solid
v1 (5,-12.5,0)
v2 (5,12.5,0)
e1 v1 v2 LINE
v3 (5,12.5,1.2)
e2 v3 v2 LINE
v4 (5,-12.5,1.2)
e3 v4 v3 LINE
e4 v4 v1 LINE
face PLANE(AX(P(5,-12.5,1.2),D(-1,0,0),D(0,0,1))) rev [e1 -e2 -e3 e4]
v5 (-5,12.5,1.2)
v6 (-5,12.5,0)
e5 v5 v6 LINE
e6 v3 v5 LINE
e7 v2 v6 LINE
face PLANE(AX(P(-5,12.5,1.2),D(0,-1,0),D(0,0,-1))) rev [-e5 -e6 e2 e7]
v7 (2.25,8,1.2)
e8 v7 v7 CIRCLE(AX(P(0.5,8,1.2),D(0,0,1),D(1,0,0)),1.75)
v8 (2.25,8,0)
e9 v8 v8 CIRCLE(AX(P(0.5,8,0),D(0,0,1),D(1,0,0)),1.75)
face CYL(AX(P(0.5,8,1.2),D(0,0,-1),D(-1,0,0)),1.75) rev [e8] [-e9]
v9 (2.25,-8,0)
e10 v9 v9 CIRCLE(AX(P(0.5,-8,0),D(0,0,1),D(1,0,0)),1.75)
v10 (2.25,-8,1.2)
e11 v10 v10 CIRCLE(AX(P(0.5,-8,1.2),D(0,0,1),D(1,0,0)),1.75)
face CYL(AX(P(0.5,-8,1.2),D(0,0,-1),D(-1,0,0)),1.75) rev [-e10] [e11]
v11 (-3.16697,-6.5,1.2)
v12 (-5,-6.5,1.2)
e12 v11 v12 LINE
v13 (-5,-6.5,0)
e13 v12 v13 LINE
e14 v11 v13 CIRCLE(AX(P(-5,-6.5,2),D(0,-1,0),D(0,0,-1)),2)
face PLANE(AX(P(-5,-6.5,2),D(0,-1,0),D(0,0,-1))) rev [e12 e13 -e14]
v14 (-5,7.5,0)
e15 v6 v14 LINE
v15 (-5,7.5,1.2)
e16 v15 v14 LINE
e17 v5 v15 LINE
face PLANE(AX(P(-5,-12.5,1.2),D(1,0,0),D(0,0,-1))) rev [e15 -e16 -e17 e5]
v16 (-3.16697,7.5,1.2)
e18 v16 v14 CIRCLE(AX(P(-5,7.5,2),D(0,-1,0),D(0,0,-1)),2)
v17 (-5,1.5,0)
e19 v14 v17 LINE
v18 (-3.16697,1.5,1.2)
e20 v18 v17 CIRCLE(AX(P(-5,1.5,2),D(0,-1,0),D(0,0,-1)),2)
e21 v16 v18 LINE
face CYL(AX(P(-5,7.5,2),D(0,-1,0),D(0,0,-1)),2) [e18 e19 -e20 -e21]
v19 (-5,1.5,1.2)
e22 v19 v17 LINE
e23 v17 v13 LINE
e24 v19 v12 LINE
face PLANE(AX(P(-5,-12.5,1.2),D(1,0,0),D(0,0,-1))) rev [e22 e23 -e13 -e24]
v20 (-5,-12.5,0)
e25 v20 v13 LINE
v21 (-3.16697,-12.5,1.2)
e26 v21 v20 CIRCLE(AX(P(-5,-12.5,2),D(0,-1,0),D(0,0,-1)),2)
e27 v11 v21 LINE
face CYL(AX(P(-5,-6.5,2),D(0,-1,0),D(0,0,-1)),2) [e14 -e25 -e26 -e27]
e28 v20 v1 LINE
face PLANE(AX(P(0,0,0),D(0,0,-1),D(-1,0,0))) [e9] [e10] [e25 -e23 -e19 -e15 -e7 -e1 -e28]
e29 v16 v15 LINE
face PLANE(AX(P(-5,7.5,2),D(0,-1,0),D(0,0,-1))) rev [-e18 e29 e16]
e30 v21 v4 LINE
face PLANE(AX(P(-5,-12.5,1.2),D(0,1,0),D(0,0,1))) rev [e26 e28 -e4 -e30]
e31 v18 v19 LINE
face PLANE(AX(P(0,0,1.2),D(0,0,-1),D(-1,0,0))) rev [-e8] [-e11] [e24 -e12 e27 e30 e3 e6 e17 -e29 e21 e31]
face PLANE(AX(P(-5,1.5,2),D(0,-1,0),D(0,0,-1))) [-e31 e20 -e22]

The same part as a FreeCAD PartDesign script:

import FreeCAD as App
import Part
import Sketcher

V = App.Vector
Q = App.Units.Quantity

doc = App.newDocument("Part")
body = doc.addObject("PartDesign::Body", "Body")

# Sketch on XY plane
sketch1 = body.newObject("Sketcher::SketchObject", "Sketch")
sketch1.AttachmentSupport = (doc.getObject("XY_Plane"), [""])
sketch1.MapMode = "FlatFace"
sketch1.addGeometry([
    Part.LineSegment(V(-5, 12.5, 0), V(-5, -12.5, 0)),  # 0
    Part.LineSegment(V(-5, -12.5, 0), V(5, -12.5, 0)),  # 1
    Part.LineSegment(V(5, -12.5, 0), V(5, 12.5, 0)),  # 2
    Part.LineSegment(V(5, 12.5, 0), V(-5, 12.5, 0)),  # 3
    Part.Circle(V(0.5, -8, 0), V(0, 0, 1), 1.8),  # 4
    Part.Circle(V(0.5, 8, 0), V(0, 0, 1), 1.8),  # 5
], False)
sketch1.addConstraint([
    Sketcher.Constraint("Coincident", 0, 2, 1, 1),
    Sketcher.Constraint("Coincident", 1, 2, 2, 1),
    Sketcher.Constraint("Coincident", 2, 2, 3, 1),
    Sketcher.Constraint("Coincident", 3, 2, 0, 1),
    Sketcher.Constraint("Vertical", 0),
    Sketcher.Constraint("Horizontal", 1),
    Sketcher.Constraint("Vertical", 2),
    Sketcher.Constraint("Horizontal", 3),
    Sketcher.Constraint("Equal", 4, 5),
    Sketcher.Constraint("Symmetric", 0, 2, 2, 2, -1, 1),
    Sketcher.Constraint("Symmetric", 4, 3, 5, 3, -1),
    Sketcher.Constraint("Diameter", 4, Q("3.5 mm")),
    Sketcher.Constraint("DistanceX", 1, 1, 1, 2, Q("10 mm")),
    Sketcher.Constraint("DistanceY", 0, 2, 0, 1, Q("25 mm")),
    Sketcher.Constraint("DistanceY", 4, 3, -1, 1, Q("8 mm")),
    Sketcher.Constraint("DistanceX", -1, 1, 4, 3, Q("0.5 mm")),
])
pad1 = body.newObject("PartDesign::Pad", "Pad")
pad1.Profile = sketch1
pad1.Length = 1.2

# Sketch on XZ plane
sketch2 = body.newObject("Sketcher::SketchObject", "Sketch001")
sketch2.AttachmentSupport = (doc.getObject("XZ_Plane"), [""])
sketch2.MapMode = "FlatFace"
sketch2.AttachmentOffset = App.Placement(V(0, 0, 12.5), App.Rotation())
sketch2.addGeometry(Part.Circle(V(-5, 2, 0), V(0, 0, 1), 2), False)
sketch2.addConstraint([
    Sketcher.Constraint("Diameter", 0, Q("4 mm")),
    Sketcher.Constraint("DistanceX", 0, 3, -1, 1, Q("5 mm")),
    Sketcher.Constraint("DistanceY", -1, 1, 0, 3, Q("2 mm")),
])
pad2 = body.newObject("PartDesign::Pad", "Pad001")
pad2.Profile = sketch2
pad2.Length = 6
pad2.Reversed = True
doc.recompute()

linearpattern = body.newObject("PartDesign::LinearPattern", "LinearPattern")
linearpattern.Originals = [pad2]
linearpattern.Direction = (doc.getObject("Y_Axis"), [""])
linearpattern.Mode = "offset"
linearpattern.Offset = 14
linearpattern.Occurrences = 2
body.Tip = linearpattern

doc.recompute()
